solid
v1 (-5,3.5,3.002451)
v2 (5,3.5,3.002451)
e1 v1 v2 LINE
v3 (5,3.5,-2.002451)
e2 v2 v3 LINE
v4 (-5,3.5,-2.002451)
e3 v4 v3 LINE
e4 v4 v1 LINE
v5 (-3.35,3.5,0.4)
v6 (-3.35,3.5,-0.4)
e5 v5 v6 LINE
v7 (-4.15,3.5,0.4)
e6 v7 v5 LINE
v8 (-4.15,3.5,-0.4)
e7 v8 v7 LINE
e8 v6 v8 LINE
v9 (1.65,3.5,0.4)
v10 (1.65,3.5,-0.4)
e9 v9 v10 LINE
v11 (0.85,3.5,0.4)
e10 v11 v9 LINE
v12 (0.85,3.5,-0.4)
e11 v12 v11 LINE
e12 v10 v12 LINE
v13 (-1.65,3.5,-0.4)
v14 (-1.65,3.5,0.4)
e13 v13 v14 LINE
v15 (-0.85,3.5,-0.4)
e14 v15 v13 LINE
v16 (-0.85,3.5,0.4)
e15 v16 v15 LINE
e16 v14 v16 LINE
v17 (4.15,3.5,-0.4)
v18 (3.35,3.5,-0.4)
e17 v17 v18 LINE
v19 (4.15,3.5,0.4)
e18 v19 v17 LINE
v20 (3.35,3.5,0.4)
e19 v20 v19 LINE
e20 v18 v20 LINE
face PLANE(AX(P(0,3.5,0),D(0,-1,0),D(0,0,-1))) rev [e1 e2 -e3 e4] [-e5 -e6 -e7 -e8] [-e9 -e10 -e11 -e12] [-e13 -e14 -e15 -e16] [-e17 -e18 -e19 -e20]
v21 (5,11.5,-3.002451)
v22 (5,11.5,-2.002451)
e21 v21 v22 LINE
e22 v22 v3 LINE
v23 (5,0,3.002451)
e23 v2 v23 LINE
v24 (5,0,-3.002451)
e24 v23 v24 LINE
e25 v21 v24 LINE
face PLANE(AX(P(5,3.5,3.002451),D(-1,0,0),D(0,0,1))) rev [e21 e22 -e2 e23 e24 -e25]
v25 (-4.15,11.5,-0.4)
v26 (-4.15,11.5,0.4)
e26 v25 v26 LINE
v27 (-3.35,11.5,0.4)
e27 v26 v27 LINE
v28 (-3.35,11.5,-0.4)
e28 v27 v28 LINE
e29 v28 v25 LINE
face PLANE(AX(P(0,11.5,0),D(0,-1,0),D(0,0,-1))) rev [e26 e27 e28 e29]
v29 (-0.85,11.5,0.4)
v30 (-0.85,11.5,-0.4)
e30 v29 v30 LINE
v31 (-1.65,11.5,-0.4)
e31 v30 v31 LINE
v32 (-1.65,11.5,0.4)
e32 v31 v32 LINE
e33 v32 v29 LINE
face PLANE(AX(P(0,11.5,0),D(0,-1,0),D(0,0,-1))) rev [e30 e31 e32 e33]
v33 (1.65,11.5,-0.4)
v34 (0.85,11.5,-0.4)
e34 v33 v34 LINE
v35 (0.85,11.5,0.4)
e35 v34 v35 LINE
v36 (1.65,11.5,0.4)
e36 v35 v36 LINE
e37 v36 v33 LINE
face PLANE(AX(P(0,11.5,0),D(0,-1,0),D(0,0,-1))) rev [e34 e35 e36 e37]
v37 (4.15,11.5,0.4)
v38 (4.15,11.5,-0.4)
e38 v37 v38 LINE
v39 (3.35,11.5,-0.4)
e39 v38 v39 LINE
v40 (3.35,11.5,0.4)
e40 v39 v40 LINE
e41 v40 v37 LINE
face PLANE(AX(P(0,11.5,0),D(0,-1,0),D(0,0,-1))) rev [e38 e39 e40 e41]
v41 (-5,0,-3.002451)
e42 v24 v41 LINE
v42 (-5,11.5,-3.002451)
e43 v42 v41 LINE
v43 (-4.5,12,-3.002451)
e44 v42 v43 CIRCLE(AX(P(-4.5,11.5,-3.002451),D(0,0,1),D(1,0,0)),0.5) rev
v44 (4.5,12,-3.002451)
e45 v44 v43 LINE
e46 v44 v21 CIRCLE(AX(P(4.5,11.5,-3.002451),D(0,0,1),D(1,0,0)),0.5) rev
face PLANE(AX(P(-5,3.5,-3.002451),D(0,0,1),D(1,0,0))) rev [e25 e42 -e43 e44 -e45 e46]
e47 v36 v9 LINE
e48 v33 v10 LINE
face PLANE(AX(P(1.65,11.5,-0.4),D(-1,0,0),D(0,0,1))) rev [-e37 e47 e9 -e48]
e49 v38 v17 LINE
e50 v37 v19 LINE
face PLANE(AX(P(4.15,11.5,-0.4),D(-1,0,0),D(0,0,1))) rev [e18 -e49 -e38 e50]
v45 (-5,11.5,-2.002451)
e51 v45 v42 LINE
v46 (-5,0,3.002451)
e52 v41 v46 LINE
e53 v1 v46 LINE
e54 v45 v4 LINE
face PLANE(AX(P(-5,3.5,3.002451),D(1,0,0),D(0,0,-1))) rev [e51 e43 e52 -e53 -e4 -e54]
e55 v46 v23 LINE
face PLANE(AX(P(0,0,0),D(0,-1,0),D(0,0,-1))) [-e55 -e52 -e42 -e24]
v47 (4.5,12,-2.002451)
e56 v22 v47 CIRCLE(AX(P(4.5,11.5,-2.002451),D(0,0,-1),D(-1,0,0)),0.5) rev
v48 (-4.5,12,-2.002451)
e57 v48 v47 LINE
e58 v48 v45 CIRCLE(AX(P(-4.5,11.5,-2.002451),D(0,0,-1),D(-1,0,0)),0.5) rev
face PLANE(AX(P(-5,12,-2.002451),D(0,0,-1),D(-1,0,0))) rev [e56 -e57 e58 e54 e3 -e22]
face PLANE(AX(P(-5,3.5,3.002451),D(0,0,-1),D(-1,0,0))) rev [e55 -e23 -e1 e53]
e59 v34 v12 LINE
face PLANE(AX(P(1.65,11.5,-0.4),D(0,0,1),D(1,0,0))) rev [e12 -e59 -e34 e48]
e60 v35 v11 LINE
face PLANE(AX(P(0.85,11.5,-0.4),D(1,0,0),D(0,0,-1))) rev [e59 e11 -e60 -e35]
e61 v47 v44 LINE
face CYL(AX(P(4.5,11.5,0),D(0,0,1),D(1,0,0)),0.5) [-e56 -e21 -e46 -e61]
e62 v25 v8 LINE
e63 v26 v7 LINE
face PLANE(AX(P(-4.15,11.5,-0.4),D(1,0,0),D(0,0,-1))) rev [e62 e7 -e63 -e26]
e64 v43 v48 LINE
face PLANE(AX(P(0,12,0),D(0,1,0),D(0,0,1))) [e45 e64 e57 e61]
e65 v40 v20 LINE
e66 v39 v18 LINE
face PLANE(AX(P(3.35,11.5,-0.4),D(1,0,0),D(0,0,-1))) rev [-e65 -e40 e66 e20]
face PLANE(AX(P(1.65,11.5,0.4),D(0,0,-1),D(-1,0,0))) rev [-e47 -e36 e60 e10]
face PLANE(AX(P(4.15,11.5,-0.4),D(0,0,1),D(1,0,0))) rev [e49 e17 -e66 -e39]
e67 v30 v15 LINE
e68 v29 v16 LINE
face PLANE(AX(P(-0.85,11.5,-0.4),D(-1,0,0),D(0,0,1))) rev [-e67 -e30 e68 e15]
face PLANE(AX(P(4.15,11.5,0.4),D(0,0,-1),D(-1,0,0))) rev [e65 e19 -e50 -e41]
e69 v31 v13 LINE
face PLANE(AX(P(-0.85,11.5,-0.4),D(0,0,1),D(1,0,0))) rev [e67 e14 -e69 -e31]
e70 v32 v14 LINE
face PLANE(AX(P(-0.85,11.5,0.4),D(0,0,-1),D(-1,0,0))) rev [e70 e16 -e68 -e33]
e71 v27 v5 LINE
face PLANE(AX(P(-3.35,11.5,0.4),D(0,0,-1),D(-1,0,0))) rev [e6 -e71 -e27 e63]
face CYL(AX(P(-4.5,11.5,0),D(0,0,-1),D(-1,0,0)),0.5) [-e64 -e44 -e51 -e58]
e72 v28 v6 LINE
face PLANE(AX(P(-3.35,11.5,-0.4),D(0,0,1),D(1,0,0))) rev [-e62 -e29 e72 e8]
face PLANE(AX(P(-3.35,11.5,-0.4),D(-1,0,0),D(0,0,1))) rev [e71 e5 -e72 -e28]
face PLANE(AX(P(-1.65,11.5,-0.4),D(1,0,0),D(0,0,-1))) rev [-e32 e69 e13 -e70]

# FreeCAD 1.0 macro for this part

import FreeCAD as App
import Part
import Sketcher
Q = App.Units.Quantity


def edges_at(feature, points):
    """Names of the edges that pass closest to the given points."""
    edges = feature.Shape.Edges
    near = lambda p: min(range(len(edges)), key=lambda i: edges[i].distToShape(Part.Vertex(*p))[0])
    return sorted({f"Edge{near(p) + 1}" for p in points})

doc = App.newDocument("Part")
body = doc.addObject("PartDesign::Body", "Body")

# Sketch on XZ plane
sketch1 = doc.addObject("Sketcher::SketchObject", "Sketch")
body.addObject(sketch1)
sketch1.AttachmentSupport = (doc.XZ_Plane, [""])
sketch1.MapMode = "FlatFace"
sketch1.addGeometry(Part.LineSegment(App.Vector(-5, -3.002451, 0), App.Vector(-5, 3.002451, 0)), False)
sketch1.addGeometry(Part.LineSegment(App.Vector(-5, 3.002451, 0), App.Vector(5, 3.002451, 0)), False)
sketch1.addGeometry(Part.LineSegment(App.Vector(5, 3.002451, 0), App.Vector(5, -3.002451, 0)), False)
sketch1.addGeometry(Part.LineSegment(App.Vector(5, -3.002451, 0), App.Vector(-5, -3.002451, 0)), False)
sketch1.addConstraint(Sketcher.Constraint("Coincident", 0, 2, 1, 1))
sketch1.addConstraint(Sketcher.Constraint("Coincident", 1, 2, 2, 1))
sketch1.addConstraint(Sketcher.Constraint("Coincident", 2, 2, 3, 1))
sketch1.addConstraint(Sketcher.Constraint("Coincident", 3, 2, 0, 1))
sketch1.addConstraint(Sketcher.Constraint("Vertical", 0))
sketch1.addConstraint(Sketcher.Constraint("Horizontal", 1))
sketch1.addConstraint(Sketcher.Constraint("Vertical", 2))
sketch1.addConstraint(Sketcher.Constraint("Horizontal", 3))
sketch1.addConstraint(Sketcher.Constraint("Symmetric", 0, 2, 2, 2, -1, 1))
sketch1.addConstraint(Sketcher.Constraint("DistanceX", 1, 1, 1, 2, Q("10 mm")))
sketch1.addConstraint(Sketcher.Constraint("DistanceY", 0, 1, 0, 2, Q("6.004902 mm")))
pad1 = doc.addObject("PartDesign::Pad", "Pad")
body.addObject(pad1)
pad1.Profile = sketch1
pad1.Length = 3.5
pad1.Reversed = True

# Sketch on XZ plane
sketch2 = doc.addObject("Sketcher::SketchObject", "Sketch001")
body.addObject(sketch2)
sketch2.AttachmentSupport = (doc.XZ_Plane, [""])
sketch2.MapMode = "FlatFace"
sketch2.AttachmentOffset = App.Placement(App.Vector(0, 0, -3.5), App.Rotation())
sketch2.addGeometry(Part.LineSegment(App.Vector(-5, -3.002451, 0), App.Vector(-5, -2.002451, 0)), False)
sketch2.addGeometry(Part.LineSegment(App.Vector(-5, -2.002451, 0), App.Vector(5, -2.002451, 0)), False)
sketch2.addGeometry(Part.LineSegment(App.Vector(5, -2.002451, 0), App.Vector(5, -3.002451, 0)), False)
sketch2.addGeometry(Part.LineSegment(App.Vector(5, -3.002451, 0), App.Vector(-5, -3.002451, 0)), False)
sketch2.addConstraint(Sketcher.Constraint("Coincident", 0, 2, 1, 1))
sketch2.addConstraint(Sketcher.Constraint("Coincident", 1, 2, 2, 1))
sketch2.addConstraint(Sketcher.Constraint("Coincident", 2, 2, 3, 1))
sketch2.addConstraint(Sketcher.Constraint("Coincident", 3, 2, 0, 1))
sketch2.addConstraint(Sketcher.Constraint("Vertical", 0))
sketch2.addConstraint(Sketcher.Constraint("Horizontal", 1))
sketch2.addConstraint(Sketcher.Constraint("Vertical", 2))
sketch2.addConstraint(Sketcher.Constraint("Horizontal", 3))
sketch2.addConstraint(Sketcher.Constraint("DistanceX", 1, 1, 1, 2, Q("10 mm")))
sketch2.addConstraint(Sketcher.Constraint("DistanceY", 0, 1, 0, 2, Q("1 mm")))
sketch2.addConstraint(Sketcher.Constraint("DistanceX", 0, 2, -1, 1, Q("5 mm")))
sketch2.addConstraint(Sketcher.Constraint("DistanceY", 0, 2, -1, 1, Q("2.002451 mm")))
pad2 = doc.addObject("PartDesign::Pad", "Pad001")
body.addObject(pad2)
pad2.Profile = sketch2
pad2.Length = 8.5
pad2.Reversed = True

# Sketch on XZ plane
sketch3 = doc.addObject("Sketcher::SketchObject", "Sketch002")
body.addObject(sketch3)
sketch3.AttachmentSupport = (doc.XZ_Plane, [""])
sketch3.MapMode = "FlatFace"
sketch3.AttachmentOffset = App.Placement(App.Vector(0, 0, -3.5), App.Rotation())
sketch3.addGeometry(Part.LineSegment(App.Vector(-4.15, -0.4, 0), App.Vector(-4.15, 0.4, 0)), False)
sketch3.addGeometry(Part.LineSegment(App.Vector(-4.15, 0.4, 0), App.Vector(-3.35, 0.4, 0)), False)
sketch3.addGeometry(Part.LineSegment(App.Vector(-3.35, 0.4, 0), App.Vector(-3.35, -0.4, 0)), False)
sketch3.addGeometry(Part.LineSegment(App.Vector(-3.35, -0.4, 0), App.Vector(-4.15, -0.4, 0)), False)
sketch3.addGeometry(Part.LineSegment(App.Vector(-1.65, -0.4, 0), App.Vector(-1.65, 0.4, 0)), False)
sketch3.addGeometry(Part.LineSegment(App.Vector(-1.65, 0.4, 0), App.Vector(-0.85, 0.4, 0)), False)
sketch3.addGeometry(Part.LineSegment(App.Vector(-0.85, 0.4, 0), App.Vector(-0.85, -0.4, 0)), False)
sketch3.addGeometry(Part.LineSegment(App.Vector(-0.85, -0.4, 0), App.Vector(-1.65, -0.4, 0)), False)
sketch3.addGeometry(Part.LineSegment(App.Vector(0.85, -0.4, 0), App.Vector(0.85, 0.4, 0)), False)
sketch3.addGeometry(Part.LineSegment(App.Vector(0.85, 0.4, 0), App.Vector(1.65, 0.4, 0)), False)
sketch3.addGeometry(Part.LineSegment(App.Vector(1.65, 0.4, 0), App.Vector(1.65, -0.4, 0)), False)
sketch3.addGeometry(Part.LineSegment(App.Vector(1.65, -0.4, 0), App.Vector(0.85, -0.4, 0)), False)
sketch3.addGeometry(Part.LineSegment(App.Vector(3.35, -0.4, 0), App.Vector(3.35, 0.4, 0)), False)
sketch3.addGeometry(Part.LineSegment(App.Vector(3.35, 0.4, 0), App.Vector(4.15, 0.4, 0)), False)
sketch3.addGeometry(Part.LineSegment(App.Vector(4.15, 0.4, 0), App.Vector(4.15, -0.4, 0)), False)
sketch3.addGeometry(Part.LineSegment(App.Vector(4.15, -0.4, 0), App.Vector(3.35, -0.4, 0)), False)
sketch3.addConstraint(Sketcher.Constraint("Coincident", 0, 2, 1, 1))
sketch3.addConstraint(Sketcher.Constraint("Coincident", 1, 2, 2, 1))
sketch3.addConstraint(Sketcher.Constraint("Coincident", 2, 2, 3, 1))
sketch3.addConstraint(Sketcher.Constraint("Coincident", 3, 2, 0, 1))
sketch3.addConstraint(Sketcher.Constraint("Coincident", 4, 2, 5, 1))
sketch3.addConstraint(Sketcher.Constraint("Coincident", 5, 2, 6, 1))
sketch3.addConstraint(Sketcher.Constraint("Coincident", 6, 2, 7, 1))
sketch3.addConstraint(Sketcher.Constraint("Coincident", 7, 2, 4, 1))
sketch3.addConstraint(Sketcher.Constraint("Coincident", 8, 2, 9, 1))
sketch3.addConstraint(Sketcher.Constraint("Coincident", 9, 2, 10, 1))
sketch3.addConstraint(Sketcher.Constraint("Coincident", 10, 2, 11, 1))
sketch3.addConstraint(Sketcher.Constraint("Coincident", 11, 2, 8, 1))
sketch3.addConstraint(Sketcher.Constraint("Coincident", 12, 2, 13, 1))
sketch3.addConstraint(Sketcher.Constraint("Coincident", 13, 2, 14, 1))
sketch3.addConstraint(Sketcher.Constraint("Coincident", 14, 2, 15, 1))
sketch3.addConstraint(Sketcher.Constraint("Coincident", 15, 2, 12, 1))
sketch3.addConstraint(Sketcher.Constraint("Vertical", 0))
sketch3.addConstraint(Sketcher.Constraint("Horizontal", 1))
sketch3.addConstraint(Sketcher.Constraint("Vertical", 2))
sketch3.addConstraint(Sketcher.Constraint("Horizontal", 3))
sketch3.addConstraint(Sketcher.Constraint("Vertical", 4))
sketch3.addConstraint(Sketcher.Constraint("Horizontal", 5))
sketch3.addConstraint(Sketcher.Constraint("Vertical", 6))
sketch3.addConstraint(Sketcher.Constraint("Horizontal", 7))
sketch3.addConstraint(Sketcher.Constraint("Vertical", 8))
sketch3.addConstraint(Sketcher.Constraint("Horizontal", 9))
sketch3.addConstraint(Sketcher.Constraint("Vertical", 10))
sketch3.addConstraint(Sketcher.Constraint("Horizontal", 11))
sketch3.addConstraint(Sketcher.Constraint("Vertical", 12))
sketch3.addConstraint(Sketcher.Constraint("Horizontal", 13))
sketch3.addConstraint(Sketcher.Constraint("Vertical", 14))
sketch3.addConstraint(Sketcher.Constraint("Horizontal", 15))
sketch3.addConstraint(Sketcher.Constraint("Symmetric", 6, 2, 8, 2, -1, 1))
sketch3.addConstraint(Sketcher.Constraint("Symmetric", 4, 2, 10, 2, -1, 1))
sketch3.addConstraint(Sketcher.Constraint("Symmetric", 2, 2, 12, 2, -1, 1))
sketch3.addConstraint(Sketcher.Constraint("Symmetric", 0, 2, 14, 2, -1, 1))
sketch3.addConstraint(Sketcher.Constraint("Horizontal", 1, 2, 4, 2))
sketch3.addConstraint(Sketcher.Constraint("Horizontal", 3, 2, 6, 2))
sketch3.addConstraint(Sketcher.Constraint("Horizontal", 5, 2, 8, 2))
sketch3.addConstraint(Sketcher.Constraint("Equal", 3, 5))
sketch3.addConstraint(Sketcher.Constraint("Equal", 15, 0))
sketch3.addConstraint(Sketcher.Constraint("DistanceX", 1, 1, 1, 2, Q("0.8 mm")))
sketch3.addConstraint(Sketcher.Constraint("DistanceX", 1, 2, 4, 2, Q("1.7 mm")))
sketch3.addConstraint(Sketcher.Constraint("DistanceX", 5, 2, 8, 2, Q("1.7 mm")))
pad3 = doc.addObject("PartDesign::Pad", "Pad002")
body.addObject(pad3)
pad3.Profile = sketch3
pad3.Length = 8
pad3.Reversed = True
doc.recompute()

fillet = doc.addObject("PartDesign::Fillet", "Fillet")
body.addObject(fillet)
fillet.Base = (pad3, edges_at(pad3, [(-5, 12, -2.502), (5, 12, -2.502)]))
fillet.Radius = 0.5

doc.recompute()
